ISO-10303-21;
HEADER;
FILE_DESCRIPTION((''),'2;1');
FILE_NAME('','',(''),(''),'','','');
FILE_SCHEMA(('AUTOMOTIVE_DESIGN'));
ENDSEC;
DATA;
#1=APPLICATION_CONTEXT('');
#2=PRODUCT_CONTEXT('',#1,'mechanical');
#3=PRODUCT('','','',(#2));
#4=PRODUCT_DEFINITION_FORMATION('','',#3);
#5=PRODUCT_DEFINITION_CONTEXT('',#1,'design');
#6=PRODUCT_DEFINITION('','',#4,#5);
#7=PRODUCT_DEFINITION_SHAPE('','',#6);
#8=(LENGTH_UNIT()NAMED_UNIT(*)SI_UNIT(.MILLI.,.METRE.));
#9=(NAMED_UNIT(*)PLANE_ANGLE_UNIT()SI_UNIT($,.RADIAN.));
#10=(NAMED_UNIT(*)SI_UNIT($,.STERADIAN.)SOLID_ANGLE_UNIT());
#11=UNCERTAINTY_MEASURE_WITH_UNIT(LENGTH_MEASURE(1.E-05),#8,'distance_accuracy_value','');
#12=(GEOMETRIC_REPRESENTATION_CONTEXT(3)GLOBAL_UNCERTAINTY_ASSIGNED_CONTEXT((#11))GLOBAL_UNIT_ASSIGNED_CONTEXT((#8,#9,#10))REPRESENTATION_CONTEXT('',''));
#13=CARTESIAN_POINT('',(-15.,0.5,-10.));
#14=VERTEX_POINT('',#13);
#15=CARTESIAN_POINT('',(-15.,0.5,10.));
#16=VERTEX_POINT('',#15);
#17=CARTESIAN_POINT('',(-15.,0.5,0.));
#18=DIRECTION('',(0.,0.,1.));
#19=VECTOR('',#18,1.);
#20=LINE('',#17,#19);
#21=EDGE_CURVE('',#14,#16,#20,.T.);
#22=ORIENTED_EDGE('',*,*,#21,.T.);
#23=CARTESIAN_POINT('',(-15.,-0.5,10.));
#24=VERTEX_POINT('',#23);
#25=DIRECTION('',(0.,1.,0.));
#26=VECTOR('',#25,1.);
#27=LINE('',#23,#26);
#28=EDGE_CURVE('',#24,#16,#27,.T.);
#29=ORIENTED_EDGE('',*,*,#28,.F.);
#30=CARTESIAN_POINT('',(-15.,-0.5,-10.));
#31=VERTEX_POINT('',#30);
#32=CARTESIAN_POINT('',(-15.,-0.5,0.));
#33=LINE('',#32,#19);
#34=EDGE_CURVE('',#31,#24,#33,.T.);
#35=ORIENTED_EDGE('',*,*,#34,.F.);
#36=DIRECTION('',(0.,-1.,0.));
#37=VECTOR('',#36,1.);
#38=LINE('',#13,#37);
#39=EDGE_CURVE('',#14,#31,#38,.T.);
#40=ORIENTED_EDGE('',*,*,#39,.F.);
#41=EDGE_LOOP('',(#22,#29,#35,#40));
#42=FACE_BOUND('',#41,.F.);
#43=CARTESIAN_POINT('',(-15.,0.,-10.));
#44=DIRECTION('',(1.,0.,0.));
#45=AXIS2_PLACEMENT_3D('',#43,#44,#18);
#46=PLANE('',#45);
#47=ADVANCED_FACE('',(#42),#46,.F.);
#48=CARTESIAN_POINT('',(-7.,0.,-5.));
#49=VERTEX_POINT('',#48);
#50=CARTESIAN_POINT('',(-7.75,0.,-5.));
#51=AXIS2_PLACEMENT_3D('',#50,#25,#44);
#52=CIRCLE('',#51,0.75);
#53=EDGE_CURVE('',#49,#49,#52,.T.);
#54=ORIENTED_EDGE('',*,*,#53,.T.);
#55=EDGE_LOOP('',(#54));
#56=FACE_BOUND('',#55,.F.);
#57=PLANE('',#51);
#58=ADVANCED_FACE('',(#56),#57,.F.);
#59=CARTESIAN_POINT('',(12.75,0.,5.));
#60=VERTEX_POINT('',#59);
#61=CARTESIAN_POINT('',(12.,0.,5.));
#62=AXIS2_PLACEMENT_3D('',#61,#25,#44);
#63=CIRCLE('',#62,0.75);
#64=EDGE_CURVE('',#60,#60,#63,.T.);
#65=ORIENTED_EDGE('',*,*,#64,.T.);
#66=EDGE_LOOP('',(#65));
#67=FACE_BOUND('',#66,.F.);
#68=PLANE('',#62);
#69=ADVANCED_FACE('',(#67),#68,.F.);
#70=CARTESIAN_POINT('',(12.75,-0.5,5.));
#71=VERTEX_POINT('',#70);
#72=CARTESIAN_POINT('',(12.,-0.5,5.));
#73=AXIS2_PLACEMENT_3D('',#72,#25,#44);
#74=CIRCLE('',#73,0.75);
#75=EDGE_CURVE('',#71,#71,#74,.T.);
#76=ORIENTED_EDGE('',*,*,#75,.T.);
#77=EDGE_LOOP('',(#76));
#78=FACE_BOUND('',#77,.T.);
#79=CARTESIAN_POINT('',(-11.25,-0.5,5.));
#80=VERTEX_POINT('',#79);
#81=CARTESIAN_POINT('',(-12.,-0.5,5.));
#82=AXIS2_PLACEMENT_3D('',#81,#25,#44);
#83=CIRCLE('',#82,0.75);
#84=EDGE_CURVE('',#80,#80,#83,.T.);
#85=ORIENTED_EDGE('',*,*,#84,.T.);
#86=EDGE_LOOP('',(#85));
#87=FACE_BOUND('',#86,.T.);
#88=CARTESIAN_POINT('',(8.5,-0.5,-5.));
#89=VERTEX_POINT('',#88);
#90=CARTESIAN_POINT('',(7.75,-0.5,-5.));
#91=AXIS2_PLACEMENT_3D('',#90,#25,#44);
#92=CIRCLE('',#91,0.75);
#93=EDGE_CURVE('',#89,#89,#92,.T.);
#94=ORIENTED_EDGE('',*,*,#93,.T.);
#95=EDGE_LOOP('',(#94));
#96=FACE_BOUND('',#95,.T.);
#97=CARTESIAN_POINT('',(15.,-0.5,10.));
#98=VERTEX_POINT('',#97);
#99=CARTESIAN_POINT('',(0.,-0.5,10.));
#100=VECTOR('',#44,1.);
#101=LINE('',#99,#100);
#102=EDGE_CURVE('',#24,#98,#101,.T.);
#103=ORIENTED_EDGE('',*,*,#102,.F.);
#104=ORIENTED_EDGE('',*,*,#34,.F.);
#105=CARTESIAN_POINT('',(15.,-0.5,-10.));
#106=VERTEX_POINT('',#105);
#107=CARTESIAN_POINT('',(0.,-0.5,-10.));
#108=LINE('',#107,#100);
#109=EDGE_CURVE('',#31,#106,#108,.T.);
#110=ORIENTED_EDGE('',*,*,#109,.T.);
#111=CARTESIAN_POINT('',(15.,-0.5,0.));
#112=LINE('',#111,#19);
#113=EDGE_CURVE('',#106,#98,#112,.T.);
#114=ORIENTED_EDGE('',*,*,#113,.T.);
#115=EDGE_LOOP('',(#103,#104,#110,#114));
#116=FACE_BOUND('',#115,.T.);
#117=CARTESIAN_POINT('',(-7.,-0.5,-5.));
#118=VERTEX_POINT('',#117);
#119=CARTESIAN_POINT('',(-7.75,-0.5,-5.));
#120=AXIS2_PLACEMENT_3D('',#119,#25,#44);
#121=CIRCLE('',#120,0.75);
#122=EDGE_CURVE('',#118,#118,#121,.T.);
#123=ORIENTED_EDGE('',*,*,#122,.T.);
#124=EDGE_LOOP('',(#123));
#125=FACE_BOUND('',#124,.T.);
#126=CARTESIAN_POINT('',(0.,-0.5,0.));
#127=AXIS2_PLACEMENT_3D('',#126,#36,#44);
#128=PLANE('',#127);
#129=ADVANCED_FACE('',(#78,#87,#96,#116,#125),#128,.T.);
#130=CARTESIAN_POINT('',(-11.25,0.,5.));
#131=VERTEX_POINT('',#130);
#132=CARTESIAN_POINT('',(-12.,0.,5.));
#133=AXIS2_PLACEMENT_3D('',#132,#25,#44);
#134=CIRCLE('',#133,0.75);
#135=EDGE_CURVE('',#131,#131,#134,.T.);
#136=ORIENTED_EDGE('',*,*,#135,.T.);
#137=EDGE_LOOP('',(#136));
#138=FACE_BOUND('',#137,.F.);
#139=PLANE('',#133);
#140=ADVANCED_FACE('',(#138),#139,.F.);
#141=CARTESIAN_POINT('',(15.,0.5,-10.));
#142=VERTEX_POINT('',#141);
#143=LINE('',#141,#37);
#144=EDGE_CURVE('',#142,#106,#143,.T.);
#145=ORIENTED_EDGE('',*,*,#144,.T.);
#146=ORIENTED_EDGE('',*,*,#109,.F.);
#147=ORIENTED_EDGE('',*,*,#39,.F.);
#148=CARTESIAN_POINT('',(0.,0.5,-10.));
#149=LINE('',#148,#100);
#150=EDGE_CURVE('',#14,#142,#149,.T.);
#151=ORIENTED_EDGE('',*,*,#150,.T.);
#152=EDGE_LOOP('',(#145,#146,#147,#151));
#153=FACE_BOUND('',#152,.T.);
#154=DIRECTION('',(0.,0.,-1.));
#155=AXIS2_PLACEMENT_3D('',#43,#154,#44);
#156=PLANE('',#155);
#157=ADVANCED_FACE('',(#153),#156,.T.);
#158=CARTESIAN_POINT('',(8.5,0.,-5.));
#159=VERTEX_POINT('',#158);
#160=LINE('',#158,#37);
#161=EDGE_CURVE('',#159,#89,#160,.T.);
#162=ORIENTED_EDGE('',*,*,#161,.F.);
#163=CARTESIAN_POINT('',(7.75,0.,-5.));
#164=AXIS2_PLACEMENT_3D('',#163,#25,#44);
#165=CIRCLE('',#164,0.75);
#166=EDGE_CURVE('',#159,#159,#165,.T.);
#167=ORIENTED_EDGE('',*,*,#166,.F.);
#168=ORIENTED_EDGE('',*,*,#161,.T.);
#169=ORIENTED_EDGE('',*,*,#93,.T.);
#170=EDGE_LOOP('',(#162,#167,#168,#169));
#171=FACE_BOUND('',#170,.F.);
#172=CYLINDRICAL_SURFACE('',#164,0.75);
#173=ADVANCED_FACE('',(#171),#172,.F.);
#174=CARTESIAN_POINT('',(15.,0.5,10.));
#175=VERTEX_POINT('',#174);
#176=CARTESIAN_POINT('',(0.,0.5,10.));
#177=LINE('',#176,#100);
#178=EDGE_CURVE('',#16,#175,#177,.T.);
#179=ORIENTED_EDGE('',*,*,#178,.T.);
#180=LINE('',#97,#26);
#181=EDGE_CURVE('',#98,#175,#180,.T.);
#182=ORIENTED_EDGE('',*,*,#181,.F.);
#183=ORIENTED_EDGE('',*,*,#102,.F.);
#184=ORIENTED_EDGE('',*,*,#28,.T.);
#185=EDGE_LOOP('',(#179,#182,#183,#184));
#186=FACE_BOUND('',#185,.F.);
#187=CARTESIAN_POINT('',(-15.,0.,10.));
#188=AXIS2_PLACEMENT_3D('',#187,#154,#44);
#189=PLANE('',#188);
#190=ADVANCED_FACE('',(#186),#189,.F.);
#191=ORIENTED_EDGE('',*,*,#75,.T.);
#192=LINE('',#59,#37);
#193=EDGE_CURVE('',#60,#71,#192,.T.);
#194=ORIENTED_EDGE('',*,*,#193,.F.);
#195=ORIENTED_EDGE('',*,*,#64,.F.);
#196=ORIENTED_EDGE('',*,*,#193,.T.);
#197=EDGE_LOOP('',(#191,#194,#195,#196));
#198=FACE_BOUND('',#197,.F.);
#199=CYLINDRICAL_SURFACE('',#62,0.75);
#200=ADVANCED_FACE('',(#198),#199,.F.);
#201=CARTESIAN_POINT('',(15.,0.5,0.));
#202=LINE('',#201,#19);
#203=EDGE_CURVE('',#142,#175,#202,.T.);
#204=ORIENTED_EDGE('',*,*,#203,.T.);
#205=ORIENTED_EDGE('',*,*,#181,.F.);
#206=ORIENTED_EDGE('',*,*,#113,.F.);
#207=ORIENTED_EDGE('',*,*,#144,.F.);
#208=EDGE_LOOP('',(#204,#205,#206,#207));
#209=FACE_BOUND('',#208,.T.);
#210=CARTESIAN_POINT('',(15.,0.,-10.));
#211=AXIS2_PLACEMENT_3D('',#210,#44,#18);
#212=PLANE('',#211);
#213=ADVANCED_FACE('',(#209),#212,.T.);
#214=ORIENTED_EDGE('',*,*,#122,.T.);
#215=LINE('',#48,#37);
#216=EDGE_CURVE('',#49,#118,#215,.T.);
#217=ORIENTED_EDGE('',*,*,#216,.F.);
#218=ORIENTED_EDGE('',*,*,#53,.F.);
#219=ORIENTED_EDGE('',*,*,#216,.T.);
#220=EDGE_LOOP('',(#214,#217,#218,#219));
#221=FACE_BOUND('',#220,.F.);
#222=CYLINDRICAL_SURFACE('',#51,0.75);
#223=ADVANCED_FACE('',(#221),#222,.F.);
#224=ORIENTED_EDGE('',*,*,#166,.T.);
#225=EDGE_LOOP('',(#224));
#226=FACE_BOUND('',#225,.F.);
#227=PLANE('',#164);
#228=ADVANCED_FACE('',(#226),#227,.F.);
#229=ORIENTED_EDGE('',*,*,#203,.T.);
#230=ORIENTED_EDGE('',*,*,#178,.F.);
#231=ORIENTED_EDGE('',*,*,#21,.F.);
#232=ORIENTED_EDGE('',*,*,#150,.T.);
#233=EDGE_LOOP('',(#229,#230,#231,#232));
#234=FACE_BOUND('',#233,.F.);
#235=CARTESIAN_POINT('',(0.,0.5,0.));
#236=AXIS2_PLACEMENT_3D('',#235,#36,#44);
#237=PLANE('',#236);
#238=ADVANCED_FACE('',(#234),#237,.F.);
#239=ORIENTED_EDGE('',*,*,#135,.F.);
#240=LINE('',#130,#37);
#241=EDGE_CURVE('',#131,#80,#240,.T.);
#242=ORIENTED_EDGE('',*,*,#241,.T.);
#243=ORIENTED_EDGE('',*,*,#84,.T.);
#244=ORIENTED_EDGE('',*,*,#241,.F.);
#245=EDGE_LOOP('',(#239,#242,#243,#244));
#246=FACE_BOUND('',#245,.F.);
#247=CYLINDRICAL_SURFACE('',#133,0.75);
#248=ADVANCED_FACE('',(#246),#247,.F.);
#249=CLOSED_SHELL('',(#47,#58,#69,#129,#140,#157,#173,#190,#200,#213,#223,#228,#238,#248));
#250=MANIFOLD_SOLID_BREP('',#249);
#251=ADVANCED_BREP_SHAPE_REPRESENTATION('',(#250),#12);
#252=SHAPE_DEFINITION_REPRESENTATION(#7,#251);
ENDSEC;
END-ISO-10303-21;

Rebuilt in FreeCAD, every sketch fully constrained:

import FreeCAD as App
import Part
import Sketcher

V = App.Vector
Q = App.Units.Quantity


def add_polygon(sketch, points):
    """Adds a closed chain of lines whose ends are joined by coincident constraints."""
    first, n = sketch.GeometryCount, len(points)
    for a, b in zip(points, points[1:] + points[:1]):
        sketch.addGeometry(Part.LineSegment(App.Vector(*a, 0), App.Vector(*b, 0)), False)
    for i in range(n):
        sketch.addConstraint(Sketcher.Constraint("Coincident", first + i, 2, first + (i + 1) % n, 1))

doc = App.newDocument("Part")
body = doc.addObject("PartDesign::Body", "Body")

sketch1 = doc.addObject("Sketcher::SketchObject", "Sketch")
body.addObject(sketch1)
sketch1.AttachmentSupport = (doc.XZ_Plane, [""])
sketch1.MapMode = "FlatFace"
add_polygon(sketch1, [(-15, 10), (-15, -10), (15, -10), (15, 10)])
sketch1.addConstraint(Sketcher.Constraint("Vertical", 0))
sketch1.addConstraint(Sketcher.Constraint("Horizontal", 1))
sketch1.addConstraint(Sketcher.Constraint("Vertical", 2))
sketch1.addConstraint(Sketcher.Constraint("Horizontal", 3))
sketch1.addConstraint(Sketcher.Constraint("Symmetric", 0, 2, 2, 2, -1, 1))
sketch1.addConstraint(Sketcher.Constraint("DistanceX", 1, 1, 1, 2, Q("30 mm")))
sketch1.addConstraint(Sketcher.Constraint("DistanceY", 0, 2, 0, 1, Q("20 mm")))
pad1 = doc.addObject("PartDesign::Pad", "Pad")
body.addObject(pad1)
pad1.Profile = sketch1
pad1.Length = 1
pad1.Midplane = True

sketch2 = doc.addObject("Sketcher::SketchObject", "Sketch001")
body.addObject(sketch2)
sketch2.AttachmentSupport = (doc.XZ_Plane, [""])
sketch2.MapMode = "FlatFace"
sketch2.addGeometry(Part.Circle(V(-7.8, -5, 0), V(0, 0, 1), 0.8), False)
sketch2.addGeometry(Part.Circle(V(-12, 5, 0), V(0, 0, 1), 0.8), False)
sketch2.addGeometry(Part.Circle(V(12, 5, 0), V(0, 0, 1), 0.8), False)
sketch2.addGeometry(Part.Circle(V(7.8, -5, 0), V(0, 0, 1), 0.8), False)
sketch2.addConstraint(Sketcher.Constraint("Equal", 0, 1))
sketch2.addConstraint(Sketcher.Constraint("Equal", 1, 2))
sketch2.addConstraint(Sketcher.Constraint("Equal", 2, 3))
sketch2.addConstraint(Sketcher.Constraint("Symmetric", 1, 3, 2, 3, -2))
sketch2.addConstraint(Sketcher.Constraint("Symmetric", 0, 3, 3, 3, -2))
sketch2.addConstraint(Sketcher.Constraint("Diameter", 0, Q("1.5 mm")))
sketch2.addConstraint(Sketcher.Constraint("DistanceY", 0, 3, -1, 1, Q("5 mm")))
sketch2.addConstraint(Sketcher.Constraint("DistanceX", 1, 3, -1, 1, Q("12 mm")))
sketch2.addConstraint(Sketcher.Constraint("DistanceY", -1, 1, 1, 3, Q("5 mm")))
sketch2.addConstraint(Sketcher.Constraint("DistanceX", 0, 3, 3, 3, Q("15.5 mm")))
pocket1 = doc.addObject("PartDesign::Pocket", "Pocket")
body.addObject(pocket1)
pocket1.Profile = sketch2
pocket1.Type = "ThroughAll"
pocket1.Reversed = True

doc.recompute()
